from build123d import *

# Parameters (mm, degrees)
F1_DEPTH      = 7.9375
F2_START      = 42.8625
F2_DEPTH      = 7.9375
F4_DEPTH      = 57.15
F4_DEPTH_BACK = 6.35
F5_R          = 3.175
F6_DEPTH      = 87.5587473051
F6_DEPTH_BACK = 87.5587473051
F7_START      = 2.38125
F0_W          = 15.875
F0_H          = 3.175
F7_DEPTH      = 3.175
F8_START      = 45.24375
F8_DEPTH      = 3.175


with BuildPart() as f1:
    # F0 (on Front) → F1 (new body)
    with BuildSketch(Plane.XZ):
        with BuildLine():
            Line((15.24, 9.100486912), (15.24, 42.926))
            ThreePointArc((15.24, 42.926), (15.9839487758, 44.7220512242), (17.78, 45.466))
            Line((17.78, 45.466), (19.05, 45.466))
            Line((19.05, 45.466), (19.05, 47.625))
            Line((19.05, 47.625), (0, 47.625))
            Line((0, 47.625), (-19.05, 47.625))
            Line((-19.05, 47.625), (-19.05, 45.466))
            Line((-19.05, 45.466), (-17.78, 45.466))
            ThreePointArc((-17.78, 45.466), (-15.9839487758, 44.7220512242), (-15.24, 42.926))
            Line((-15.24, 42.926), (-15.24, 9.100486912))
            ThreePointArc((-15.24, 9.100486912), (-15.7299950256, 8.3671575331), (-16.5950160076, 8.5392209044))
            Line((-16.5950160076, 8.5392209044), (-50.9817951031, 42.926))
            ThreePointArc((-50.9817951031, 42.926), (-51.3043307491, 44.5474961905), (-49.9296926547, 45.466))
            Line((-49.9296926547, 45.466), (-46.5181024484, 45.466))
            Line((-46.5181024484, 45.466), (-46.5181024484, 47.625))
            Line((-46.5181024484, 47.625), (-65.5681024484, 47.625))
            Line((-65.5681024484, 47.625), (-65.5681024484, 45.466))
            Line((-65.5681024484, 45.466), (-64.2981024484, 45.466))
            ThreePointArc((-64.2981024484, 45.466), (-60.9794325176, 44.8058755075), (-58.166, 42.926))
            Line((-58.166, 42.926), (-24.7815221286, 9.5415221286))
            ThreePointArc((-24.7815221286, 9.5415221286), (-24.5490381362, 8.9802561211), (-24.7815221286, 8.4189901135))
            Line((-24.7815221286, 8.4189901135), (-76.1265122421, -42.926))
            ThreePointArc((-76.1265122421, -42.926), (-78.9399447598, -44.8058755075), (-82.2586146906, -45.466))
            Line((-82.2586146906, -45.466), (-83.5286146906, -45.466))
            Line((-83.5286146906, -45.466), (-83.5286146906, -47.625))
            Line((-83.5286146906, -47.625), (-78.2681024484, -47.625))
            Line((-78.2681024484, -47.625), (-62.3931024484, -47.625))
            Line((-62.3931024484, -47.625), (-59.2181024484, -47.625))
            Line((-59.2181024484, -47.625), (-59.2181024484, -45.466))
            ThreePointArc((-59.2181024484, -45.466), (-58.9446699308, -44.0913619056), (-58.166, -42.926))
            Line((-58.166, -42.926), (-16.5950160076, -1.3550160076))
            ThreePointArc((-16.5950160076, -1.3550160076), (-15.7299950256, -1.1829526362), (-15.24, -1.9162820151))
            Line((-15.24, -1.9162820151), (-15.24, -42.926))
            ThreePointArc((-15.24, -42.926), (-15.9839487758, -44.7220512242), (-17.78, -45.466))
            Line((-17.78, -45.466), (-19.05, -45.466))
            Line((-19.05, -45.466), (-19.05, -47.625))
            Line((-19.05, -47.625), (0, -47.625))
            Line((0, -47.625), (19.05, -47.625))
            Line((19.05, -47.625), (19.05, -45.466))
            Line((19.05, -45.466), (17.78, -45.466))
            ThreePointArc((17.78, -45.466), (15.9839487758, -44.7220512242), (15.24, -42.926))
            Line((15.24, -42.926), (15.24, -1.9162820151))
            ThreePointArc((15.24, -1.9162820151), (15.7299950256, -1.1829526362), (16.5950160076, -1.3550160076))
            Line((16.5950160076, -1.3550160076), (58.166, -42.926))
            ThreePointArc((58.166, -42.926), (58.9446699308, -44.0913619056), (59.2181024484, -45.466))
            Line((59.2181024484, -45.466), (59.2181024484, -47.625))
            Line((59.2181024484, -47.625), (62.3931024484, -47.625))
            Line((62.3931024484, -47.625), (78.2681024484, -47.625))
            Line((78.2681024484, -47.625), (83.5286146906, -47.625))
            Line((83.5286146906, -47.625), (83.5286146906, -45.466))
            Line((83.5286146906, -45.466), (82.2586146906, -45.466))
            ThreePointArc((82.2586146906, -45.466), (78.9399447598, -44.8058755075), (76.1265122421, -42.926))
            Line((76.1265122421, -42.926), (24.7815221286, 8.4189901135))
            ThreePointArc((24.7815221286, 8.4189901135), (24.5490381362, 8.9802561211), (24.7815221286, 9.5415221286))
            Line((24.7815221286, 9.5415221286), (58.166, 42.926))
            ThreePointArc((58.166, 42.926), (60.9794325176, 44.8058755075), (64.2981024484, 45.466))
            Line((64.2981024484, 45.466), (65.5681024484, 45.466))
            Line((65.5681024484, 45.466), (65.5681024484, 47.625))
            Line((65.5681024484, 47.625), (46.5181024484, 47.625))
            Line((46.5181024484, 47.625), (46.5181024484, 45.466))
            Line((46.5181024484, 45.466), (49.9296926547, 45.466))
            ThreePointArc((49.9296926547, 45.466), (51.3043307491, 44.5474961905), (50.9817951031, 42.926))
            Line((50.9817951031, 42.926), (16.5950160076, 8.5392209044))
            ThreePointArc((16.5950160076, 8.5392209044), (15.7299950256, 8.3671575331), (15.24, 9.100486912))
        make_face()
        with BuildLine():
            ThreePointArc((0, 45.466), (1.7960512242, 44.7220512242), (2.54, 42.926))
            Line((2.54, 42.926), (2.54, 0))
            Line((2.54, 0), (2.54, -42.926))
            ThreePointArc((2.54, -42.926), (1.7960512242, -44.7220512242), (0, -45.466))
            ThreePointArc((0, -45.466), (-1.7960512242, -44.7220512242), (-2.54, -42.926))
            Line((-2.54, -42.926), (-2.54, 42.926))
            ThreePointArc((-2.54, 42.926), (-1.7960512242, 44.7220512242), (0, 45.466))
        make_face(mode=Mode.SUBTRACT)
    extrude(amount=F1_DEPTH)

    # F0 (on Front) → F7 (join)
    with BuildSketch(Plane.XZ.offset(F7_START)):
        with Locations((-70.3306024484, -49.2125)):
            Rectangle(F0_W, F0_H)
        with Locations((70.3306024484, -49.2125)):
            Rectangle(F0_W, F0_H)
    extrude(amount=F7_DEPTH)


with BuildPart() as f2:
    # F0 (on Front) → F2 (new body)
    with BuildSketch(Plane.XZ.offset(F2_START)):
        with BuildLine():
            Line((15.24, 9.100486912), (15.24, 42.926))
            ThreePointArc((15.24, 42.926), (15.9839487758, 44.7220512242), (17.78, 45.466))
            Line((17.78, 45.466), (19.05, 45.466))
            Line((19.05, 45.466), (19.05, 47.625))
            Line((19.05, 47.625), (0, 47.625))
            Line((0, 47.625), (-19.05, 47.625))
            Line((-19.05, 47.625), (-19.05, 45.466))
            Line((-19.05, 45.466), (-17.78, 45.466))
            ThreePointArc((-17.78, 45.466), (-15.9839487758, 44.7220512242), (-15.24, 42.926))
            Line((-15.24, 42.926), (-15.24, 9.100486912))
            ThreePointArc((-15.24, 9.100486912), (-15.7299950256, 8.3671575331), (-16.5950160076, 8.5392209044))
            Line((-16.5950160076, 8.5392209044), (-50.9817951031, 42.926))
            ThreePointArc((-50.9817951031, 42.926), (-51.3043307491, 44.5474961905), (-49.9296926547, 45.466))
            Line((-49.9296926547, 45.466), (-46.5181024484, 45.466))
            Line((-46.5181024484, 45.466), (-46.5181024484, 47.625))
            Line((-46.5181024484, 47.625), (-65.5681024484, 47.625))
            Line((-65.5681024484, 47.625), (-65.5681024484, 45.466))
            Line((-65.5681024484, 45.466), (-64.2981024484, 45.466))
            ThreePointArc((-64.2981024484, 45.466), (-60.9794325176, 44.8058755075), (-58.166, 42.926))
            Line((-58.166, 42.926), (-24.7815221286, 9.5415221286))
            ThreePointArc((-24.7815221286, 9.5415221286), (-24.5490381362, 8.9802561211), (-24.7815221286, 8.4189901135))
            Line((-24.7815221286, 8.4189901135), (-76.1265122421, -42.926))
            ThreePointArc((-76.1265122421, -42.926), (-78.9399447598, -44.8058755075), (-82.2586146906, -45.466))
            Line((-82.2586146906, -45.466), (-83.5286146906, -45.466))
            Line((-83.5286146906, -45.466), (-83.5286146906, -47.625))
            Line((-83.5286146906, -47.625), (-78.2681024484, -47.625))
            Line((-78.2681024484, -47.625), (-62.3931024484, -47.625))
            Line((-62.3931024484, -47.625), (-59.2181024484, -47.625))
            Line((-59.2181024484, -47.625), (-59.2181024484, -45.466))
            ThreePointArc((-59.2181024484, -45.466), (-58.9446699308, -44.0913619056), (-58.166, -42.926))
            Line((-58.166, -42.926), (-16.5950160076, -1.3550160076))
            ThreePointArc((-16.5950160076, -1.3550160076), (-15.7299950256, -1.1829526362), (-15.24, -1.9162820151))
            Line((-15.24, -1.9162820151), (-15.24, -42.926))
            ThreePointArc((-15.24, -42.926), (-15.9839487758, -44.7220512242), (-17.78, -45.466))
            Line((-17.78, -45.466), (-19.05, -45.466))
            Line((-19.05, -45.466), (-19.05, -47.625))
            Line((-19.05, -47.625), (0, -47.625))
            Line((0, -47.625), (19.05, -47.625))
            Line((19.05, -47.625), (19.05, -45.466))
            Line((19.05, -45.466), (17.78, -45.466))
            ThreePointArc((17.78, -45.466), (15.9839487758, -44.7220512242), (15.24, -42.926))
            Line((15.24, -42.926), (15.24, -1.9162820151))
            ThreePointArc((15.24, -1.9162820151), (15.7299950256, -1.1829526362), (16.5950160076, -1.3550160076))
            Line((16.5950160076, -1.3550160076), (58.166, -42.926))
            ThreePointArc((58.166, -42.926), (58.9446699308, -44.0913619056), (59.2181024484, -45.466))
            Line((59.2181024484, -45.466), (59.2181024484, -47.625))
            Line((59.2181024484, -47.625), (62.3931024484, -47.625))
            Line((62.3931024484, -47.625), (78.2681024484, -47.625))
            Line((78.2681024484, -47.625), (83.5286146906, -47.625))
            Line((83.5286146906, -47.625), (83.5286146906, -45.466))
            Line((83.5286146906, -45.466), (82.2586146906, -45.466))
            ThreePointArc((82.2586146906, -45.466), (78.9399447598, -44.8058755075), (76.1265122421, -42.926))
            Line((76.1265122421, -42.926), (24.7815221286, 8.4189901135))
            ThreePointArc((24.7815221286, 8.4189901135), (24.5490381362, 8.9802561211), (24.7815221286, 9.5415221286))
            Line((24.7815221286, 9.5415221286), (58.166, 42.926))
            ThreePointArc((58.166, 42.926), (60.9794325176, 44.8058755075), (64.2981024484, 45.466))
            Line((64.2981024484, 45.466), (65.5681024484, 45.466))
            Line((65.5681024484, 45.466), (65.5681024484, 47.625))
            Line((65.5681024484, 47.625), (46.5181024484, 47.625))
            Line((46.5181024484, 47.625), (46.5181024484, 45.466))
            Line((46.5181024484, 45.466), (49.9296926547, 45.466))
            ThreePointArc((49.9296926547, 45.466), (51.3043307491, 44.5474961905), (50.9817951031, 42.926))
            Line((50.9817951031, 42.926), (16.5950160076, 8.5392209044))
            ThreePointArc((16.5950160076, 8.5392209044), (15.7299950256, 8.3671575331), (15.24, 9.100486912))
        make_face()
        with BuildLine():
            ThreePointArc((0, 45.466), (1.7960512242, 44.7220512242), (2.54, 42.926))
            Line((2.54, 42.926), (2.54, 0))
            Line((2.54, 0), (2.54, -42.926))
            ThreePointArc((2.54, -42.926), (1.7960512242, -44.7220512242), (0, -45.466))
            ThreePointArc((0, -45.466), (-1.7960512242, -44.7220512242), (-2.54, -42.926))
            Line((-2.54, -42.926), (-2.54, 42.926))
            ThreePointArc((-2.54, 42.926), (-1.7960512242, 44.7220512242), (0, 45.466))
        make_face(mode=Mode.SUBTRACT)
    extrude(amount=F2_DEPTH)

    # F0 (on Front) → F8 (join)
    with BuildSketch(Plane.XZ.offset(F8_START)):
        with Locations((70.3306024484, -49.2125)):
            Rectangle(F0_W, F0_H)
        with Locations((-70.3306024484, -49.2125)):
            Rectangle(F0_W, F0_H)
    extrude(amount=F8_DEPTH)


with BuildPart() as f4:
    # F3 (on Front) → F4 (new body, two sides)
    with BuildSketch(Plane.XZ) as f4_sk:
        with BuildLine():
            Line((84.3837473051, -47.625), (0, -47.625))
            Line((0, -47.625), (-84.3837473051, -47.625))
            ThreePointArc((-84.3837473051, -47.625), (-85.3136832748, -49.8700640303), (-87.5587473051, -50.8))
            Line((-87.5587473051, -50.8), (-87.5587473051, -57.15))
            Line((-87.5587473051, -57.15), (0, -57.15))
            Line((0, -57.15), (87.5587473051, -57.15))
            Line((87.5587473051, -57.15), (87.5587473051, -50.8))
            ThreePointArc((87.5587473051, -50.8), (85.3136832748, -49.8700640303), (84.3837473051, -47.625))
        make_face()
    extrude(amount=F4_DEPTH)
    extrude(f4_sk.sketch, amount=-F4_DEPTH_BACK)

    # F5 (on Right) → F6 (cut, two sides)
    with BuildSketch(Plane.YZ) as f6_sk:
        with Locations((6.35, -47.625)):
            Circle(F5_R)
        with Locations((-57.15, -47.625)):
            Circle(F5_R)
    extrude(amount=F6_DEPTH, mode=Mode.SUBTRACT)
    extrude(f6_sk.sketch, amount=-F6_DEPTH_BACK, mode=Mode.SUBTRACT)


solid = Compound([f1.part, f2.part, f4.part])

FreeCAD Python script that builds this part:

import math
import FreeCAD as App
import Part
import Sketcher
Q = App.Units.Quantity

doc = App.newDocument("Part")
body = doc.addObject("PartDesign::Body", "Body")

# Sketch on XZ plane
sketch1 = doc.addObject("Sketcher::SketchObject", "Sketch")
body.addObject(sketch1)
sketch1.AttachmentSupport = (doc.XZ_Plane, [""])
sketch1.MapMode = "FlatFace"
sketch1.addGeometry([
    Part.LineSegment(App.Vector(15.24, 9.100487, 0), App.Vector(15.24, 42.926, 0)),  # 0
    Part.ArcOfCircle(Part.Circle(App.Vector(17.78, 42.926, 0), App.Vector(0, 0, 1), 2.54), math.radians(90), math.radians(180)),  # 1
    Part.LineSegment(App.Vector(17.78, 45.466, 0), App.Vector(19.05, 45.466, 0)),  # 2
    Part.LineSegment(App.Vector(19.05, 45.466, 0), App.Vector(19.05, 47.625, 0)),  # 3
    Part.LineSegment(App.Vector(19.05, 47.625, 0), App.Vector(-19.05, 47.625, 0)),  # 4
    Part.LineSegment(App.Vector(-19.05, 47.625, 0), App.Vector(-19.05, 45.466, 0)),  # 5
    Part.LineSegment(App.Vector(-19.05, 45.466, 0), App.Vector(-17.78, 45.466, 0)),  # 6
    Part.ArcOfCircle(Part.Circle(App.Vector(-17.78, 42.926, 0), App.Vector(0, 0, 1), 2.54), math.radians(0), math.radians(90)),  # 7
    Part.LineSegment(App.Vector(-15.24, 42.926, 0), App.Vector(-15.24, 9.100487, 0)),  # 8
    Part.ArcOfCircle(Part.Circle(App.Vector(-16.03375, 9.100487, 0), App.Vector(0, 0, 1), 0.79375), math.radians(-135), math.radians(0)),  # 9
    Part.LineSegment(App.Vector(-16.595016, 8.539221, 0), App.Vector(-50.981795, 42.926, 0)),  # 10
    Part.ArcOfCircle(Part.Circle(App.Vector(-49.929693, 43.978102, 0), App.Vector(0, 0, 1), 1.487898), math.radians(90), math.radians(225)),  # 11
    Part.LineSegment(App.Vector(-49.929693, 45.466, 0), App.Vector(-46.518102, 45.466, 0)),  # 12
    Part.LineSegment(App.Vector(-46.518102, 45.466, 0), App.Vector(-46.518102, 47.625, 0)),  # 13
    Part.LineSegment(App.Vector(-46.518102, 47.625, 0), App.Vector(-65.568102, 47.625, 0)),  # 14
    Part.LineSegment(App.Vector(-65.568102, 47.625, 0), App.Vector(-65.568102, 45.466, 0)),  # 15
    Part.LineSegment(App.Vector(-65.568102, 45.466, 0), App.Vector(-64.298102, 45.466, 0)),  # 16
    Part.ArcOfCircle(Part.Circle(App.Vector(-64.298102, 36.793898, 0), App.Vector(0, 0, 1), 8.672102), math.radians(45), math.radians(90)),  # 17
    Part.LineSegment(App.Vector(-58.166, 42.926, 0), App.Vector(-24.781522, 9.541522, 0)),  # 18
    Part.ArcOfCircle(Part.Circle(App.Vector(-25.342788, 8.980256, 0), App.Vector(0, 0, 1), 0.79375), math.radians(-45), math.radians(45)),  # 19
    Part.LineSegment(App.Vector(-24.781522, 8.41899, 0), App.Vector(-76.126512, -42.926, 0)),  # 20
    Part.ArcOfCircle(Part.Circle(App.Vector(-82.258615, -36.793898, 0), App.Vector(0, 0, 1), 8.672102), math.radians(-90), math.radians(-45)),  # 21
    Part.LineSegment(App.Vector(-82.258615, -45.466, 0), App.Vector(-83.528615, -45.466, 0)),  # 22
    Part.LineSegment(App.Vector(-83.528615, -45.466, 0), App.Vector(-83.528615, -47.625, 0)),  # 23
    Part.LineSegment(App.Vector(-83.528615, -47.625, 0), App.Vector(-59.218102, -47.625, 0)),  # 24
    Part.LineSegment(App.Vector(-59.218102, -47.625, 0), App.Vector(-59.218102, -45.466, 0)),  # 25
    Part.ArcOfCircle(Part.Circle(App.Vector(-55.626, -45.466, 0), App.Vector(0, 0, 1), 3.592102), math.radians(135), math.radians(180)),  # 26
    Part.LineSegment(App.Vector(-58.166, -42.926, 0), App.Vector(-16.595016, -1.355016, 0)),  # 27
    Part.ArcOfCircle(Part.Circle(App.Vector(-16.03375, -1.916282, 0), App.Vector(0, 0, 1), 0.79375), math.radians(0), math.radians(135)),  # 28
    Part.LineSegment(App.Vector(-15.24, -1.916282, 0), App.Vector(-15.24, -42.926, 0)),  # 29
    Part.ArcOfCircle(Part.Circle(App.Vector(-17.78, -42.926, 0), App.Vector(0, 0, 1), 2.54), math.radians(-90), math.radians(0)),  # 30
    Part.LineSegment(App.Vector(-17.78, -45.466, 0), App.Vector(-19.05, -45.466, 0)),  # 31
    Part.LineSegment(App.Vector(-19.05, -45.466, 0), App.Vector(-19.05, -47.625, 0)),  # 32
    Part.LineSegment(App.Vector(-19.05, -47.625, 0), App.Vector(19.05, -47.625, 0)),  # 33
    Part.LineSegment(App.Vector(19.05, -47.625, 0), App.Vector(19.05, -45.466, 0)),  # 34
    Part.LineSegment(App.Vector(19.05, -45.466, 0), App.Vector(17.78, -45.466, 0)),  # 35
    Part.ArcOfCircle(Part.Circle(App.Vector(17.78, -42.926, 0), App.Vector(0, 0, 1), 2.54), math.radians(180), math.radians(270)),  # 36
    Part.LineSegment(App.Vector(15.24, -42.926, 0), App.Vector(15.24, -1.916282, 0)),  # 37
    Part.ArcOfCircle(Part.Circle(App.Vector(16.03375, -1.916282, 0), App.Vector(0, 0, 1), 0.79375), math.radians(45), math.radians(180)),  # 38
    Part.LineSegment(App.Vector(16.595016, -1.355016, 0), App.Vector(58.166, -42.926, 0)),  # 39
    Part.ArcOfCircle(Part.Circle(App.Vector(55.626, -45.466, 0), App.Vector(0, 0, 1), 3.592102), math.radians(0), math.radians(45)),  # 40
    Part.LineSegment(App.Vector(59.218102, -45.466, 0), App.Vector(59.218102, -47.625, 0)),  # 41
    Part.LineSegment(App.Vector(59.218102, -47.625, 0), App.Vector(83.528615, -47.625, 0)),  # 42
    Part.LineSegment(App.Vector(83.528615, -47.625, 0), App.Vector(83.528615, -45.466, 0)),  # 43
    Part.LineSegment(App.Vector(83.528615, -45.466, 0), App.Vector(82.258615, -45.466, 0)),  # 44
    Part.ArcOfCircle(Part.Circle(App.Vector(82.258615, -36.793898, 0), App.Vector(0, 0, 1), 8.672102), math.radians(-135), math.radians(-90)),  # 45
    Part.LineSegment(App.Vector(76.126512, -42.926, 0), App.Vector(24.781522, 8.41899, 0)),  # 46
    Part.ArcOfCircle(Part.Circle(App.Vector(25.342788, 8.980256, 0), App.Vector(0, 0, 1), 0.79375), math.radians(135), math.radians(225)),  # 47
    Part.LineSegment(App.Vector(24.781522, 9.541522, 0), App.Vector(58.166, 42.926, 0)),  # 48
    Part.ArcOfCircle(Part.Circle(App.Vector(64.298102, 36.793898, 0), App.Vector(0, 0, 1), 8.672102), math.radians(90), math.radians(135)),  # 49
    Part.LineSegment(App.Vector(64.298102, 45.466, 0), App.Vector(65.568102, 45.466, 0)),  # 50
    Part.LineSegment(App.Vector(65.568102, 45.466, 0), App.Vector(65.568102, 47.625, 0)),  # 51
    Part.LineSegment(App.Vector(65.568102, 47.625, 0), App.Vector(46.518102, 47.625, 0)),  # 52
    Part.LineSegment(App.Vector(46.518102, 47.625, 0), App.Vector(46.518102, 45.466, 0)),  # 53
    Part.LineSegment(App.Vector(46.518102, 45.466, 0), App.Vector(49.929693, 45.466, 0)),  # 54
    Part.ArcOfCircle(Part.Circle(App.Vector(49.929693, 43.978102, 0), App.Vector(0, 0, 1), 1.487898), math.radians(-45), math.radians(90)),  # 55
    Part.LineSegment(App.Vector(50.981795, 42.926, 0), App.Vector(16.595016, 8.539221, 0)),  # 56
    Part.ArcOfCircle(Part.Circle(App.Vector(16.03375, 9.100487, 0), App.Vector(0, 0, 1), 0.79375), math.radians(180), math.radians(315)),  # 57
    Part.ArcOfCircle(Part.Circle(App.Vector(0, 42.926, 0), App.Vector(0, 0, 1), 2.54), math.radians(90), math.radians(180)),  # 58
    Part.ArcOfCircle(Part.Circle(App.Vector(0, 42.926, 0), App.Vector(0, 0, 1), 2.54), math.radians(0), math.radians(90)),  # 59
    Part.LineSegment(App.Vector(2.54, 42.926, 0), App.Vector(2.54, -42.926, 0)),  # 60
    Part.ArcOfCircle(Part.Circle(App.Vector(0, -42.926, 0), App.Vector(0, 0, 1), 2.54), math.radians(-90), math.radians(0)),  # 61
    Part.ArcOfCircle(Part.Circle(App.Vector(0, -42.926, 0), App.Vector(0, 0, 1), 2.54), math.radians(180), math.radians(270)),  # 62
    Part.LineSegment(App.Vector(-2.54, -42.926, 0), App.Vector(-2.54, 42.926, 0)),  # 63
], False)
sketch1.addConstraint([
    Sketcher.Constraint("Tangent", 0, 2, 1, 2),
    Sketcher.Constraint("Tangent", 1, 1, 2, 1),
    Sketcher.Constraint("Coincident", 2, 2, 3, 1),
    Sketcher.Constraint("Coincident", 3, 2, 4, 1),
    Sketcher.Constraint("Coincident", 4, 2, 5, 1),
    Sketcher.Constraint("Coincident", 5, 2, 6, 1),
    Sketcher.Constraint("Tangent", 6, 2, 7, 2),
    Sketcher.Constraint("Tangent", 7, 1, 8, 1),
    Sketcher.Constraint("Tangent", 8, 2, 9, 2),
    Sketcher.Constraint("Tangent", 9, 1, 10, 1),
    Sketcher.Constraint("Tangent", 10, 2, 11, 2),
    Sketcher.Constraint("Tangent", 11, 1, 12, 1),
    Sketcher.Constraint("Coincident", 12, 2, 13, 1),
    Sketcher.Constraint("Coincident", 13, 2, 14, 1),
    Sketcher.Constraint("Coincident", 14, 2, 15, 1),
    Sketcher.Constraint("Coincident", 15, 2, 16, 1),
    Sketcher.Constraint("Tangent", 16, 2, 17, 2),
    Sketcher.Constraint("Tangent", 17, 1, 18, 1),
    Sketcher.Constraint("Tangent", 18, 2, 19, 2),
    Sketcher.Constraint("Tangent", 19, 1, 20, 1),
    Sketcher.Constraint("Tangent", 20, 2, 21, 2),
    Sketcher.Constraint("Tangent", 21, 1, 22, 1),
    Sketcher.Constraint("Coincident", 22, 2, 23, 1),
    Sketcher.Constraint("Coincident", 23, 2, 24, 1),
    Sketcher.Constraint("Coincident", 24, 2, 25, 1),
    Sketcher.Constraint("Tangent", 25, 2, 26, 2),
    Sketcher.Constraint("Tangent", 26, 1, 27, 1),
    Sketcher.Constraint("Tangent", 27, 2, 28, 2),
    Sketcher.Constraint("Tangent", 28, 1, 29, 1),
    Sketcher.Constraint("Tangent", 29, 2, 30, 2),
    Sketcher.Constraint("Tangent", 30, 1, 31, 1),
    Sketcher.Constraint("Coincident", 31, 2, 32, 1),
    Sketcher.Constraint("Coincident", 32, 2, 33, 1),
    Sketcher.Constraint("Coincident", 33, 2, 34, 1),
    Sketcher.Constraint("Coincident", 34, 2, 35, 1),
    Sketcher.Constraint("Tangent", 35, 2, 36, 2),
    Sketcher.Constraint("Tangent", 36, 1, 37, 1),
    Sketcher.Constraint("Tangent", 37, 2, 38, 2),
    Sketcher.Constraint("Tangent", 38, 1, 39, 1),
    Sketcher.Constraint("Tangent", 39, 2, 40, 2),
    Sketcher.Constraint("Tangent", 40, 1, 41, 1),
    Sketcher.Constraint("Coincident", 41, 2, 42, 1),
    Sketcher.Constraint("Coincident", 42, 2, 43, 1),
    Sketcher.Constraint("Coincident", 43, 2, 44, 1),
    Sketcher.Constraint("Tangent", 44, 2, 45, 2),
    Sketcher.Constraint("Tangent", 45, 1, 46, 1),
    Sketcher.Constraint("Tangent", 46, 2, 47, 2),
    Sketcher.Constraint("Tangent", 47, 1, 48, 1),
    Sketcher.Constraint("Tangent", 48, 2, 49, 2),
    Sketcher.Constraint("Tangent", 49, 1, 50, 1),
    Sketcher.Constraint("Coincident", 50, 2, 51, 1),
    Sketcher.Constraint("Coincident", 51, 2, 52, 1),
    Sketcher.Constraint("Coincident", 52, 2, 53, 1),
    Sketcher.Constraint("Coincident", 53, 2, 54, 1),
    Sketcher.Constraint("Tangent", 54, 2, 55, 2),
    Sketcher.Constraint("Tangent", 55, 1, 56, 1),
    Sketcher.Constraint("Tangent", 56, 2, 57, 2),
    Sketcher.Constraint("Tangent", 57, 1, 0, 1),
    Sketcher.Constraint("Tangent", 58, 1, 59, 2),
    Sketcher.Constraint("Tangent", 59, 1, 60, 1),
    Sketcher.Constraint("Tangent", 60, 2, 61, 2),
    Sketcher.Constraint("Tangent", 61, 1, 62, 2),
    Sketcher.Constraint("Tangent", 62, 1, 63, 1),
    Sketcher.Constraint("Tangent", 63, 2, 58, 2),
    Sketcher.Constraint("Vertical", 0),
    Sketcher.Constraint("Horizontal", 2),
    Sketcher.Constraint("Vertical", 3),
    Sketcher.Constraint("Horizontal", 4),
    Sketcher.Constraint("Vertical", 5),
    Sketcher.Constraint("Horizontal", 6),
    Sketcher.Constraint("Vertical", 8),
    Sketcher.Constraint("Horizontal", 12),
    Sketcher.Constraint("Vertical", 13),
    Sketcher.Constraint("Horizontal", 14),
    Sketcher.Constraint("Vertical", 15),
    Sketcher.Constraint("Horizontal", 16),
    Sketcher.Constraint("Horizontal", 22),
    Sketcher.Constraint("Vertical", 23),
    Sketcher.Constraint("Horizontal", 24),
    Sketcher.Constraint("Vertical", 25),
    Sketcher.Constraint("Vertical", 29),
    Sketcher.Constraint("Horizontal", 31),
    Sketcher.Constraint("Vertical", 32),
    Sketcher.Constraint("Horizontal", 33),
    Sketcher.Constraint("Vertical", 34),
    Sketcher.Constraint("Horizontal", 35),
    Sketcher.Constraint("Vertical", 37),
    Sketcher.Constraint("Vertical", 41),
    Sketcher.Constraint("Horizontal", 42),
    Sketcher.Constraint("Vertical", 43),
    Sketcher.Constraint("Horizontal", 44),
    Sketcher.Constraint("Horizontal", 50),
    Sketcher.Constraint("Vertical", 51),
    Sketcher.Constraint("Horizontal", 52),
    Sketcher.Constraint("Vertical", 53),
    Sketcher.Constraint("Horizontal", 54),
    Sketcher.Constraint("Vertical", 60),
    Sketcher.Constraint("Vertical", 63),
    Sketcher.Constraint("Equal", 1, 7),
    Sketcher.Constraint("Equal", 9, 19),
    Sketcher.Constraint("Equal", 17, 21),
    Sketcher.Constraint("Equal", 19, 28),
    Sketcher.Constraint("Equal", 7, 30),
    Sketcher.Constraint("Equal", 30, 36),
    Sketcher.Constraint("Equal", 28, 38),
    Sketcher.Constraint("Equal", 26, 40),
    Sketcher.Constraint("Equal", 21, 45),
    Sketcher.Constraint("Equal", 38, 47),
    Sketcher.Constraint("Equal", 45, 49),
    Sketcher.Constraint("Equal", 11, 55),
    Sketcher.Constraint("Equal", 47, 57),
    Sketcher.Constraint("Equal", 36, 58),
    Sketcher.Constraint("Equal", 58, 59),
    Sketcher.Constraint("Equal", 59, 61),
    Sketcher.Constraint("Symmetric", 1, 3, 30, 3, -1, 1),
    Sketcher.Constraint("Symmetric", 7, 3, 36, 3, -1, 1),
    Sketcher.Constraint("Symmetric", 58, 3, 61, 3, -1, 1),
    Sketcher.Constraint("Symmetric", 3, 2, 32, 2, -1, 1),
    Sketcher.Constraint("Symmetric", 17, 1, 39, 2, -1, 1),
    Sketcher.Constraint("Symmetric", 26, 1, 48, 2, -1, 1),
    Sketcher.Constraint("Symmetric", 1, 3, 7, 3, -2),
    Sketcher.Constraint("Symmetric", 26, 3, 40, 3, -2),
    Sketcher.Constraint("Symmetric", 21, 3, 45, 3, -2),
    Sketcher.Constraint("Symmetric", 19, 3, 47, 3, -2),
    Sketcher.Constraint("Symmetric", 11, 3, 55, 3, -2),
    Sketcher.Constraint("Symmetric", 23, 2, 42, 2, -2),
    Sketcher.Constraint("Symmetric", 15, 2, 50, 2, -2),
    Sketcher.Constraint("Symmetric", 13, 2, 52, 2, -2),
    Sketcher.Constraint("PointOnObject", 58, 1, -2),
    Sketcher.Constraint("PointOnObject", 61, 1, -2),
    Sketcher.Constraint("Parallel", 10, 18),
    Sketcher.Constraint("Perpendicular", 18, 20),
    Sketcher.Constraint("Parallel", 20, 27),
    Sketcher.Constraint("Perpendicular", 27, 39),
    Sketcher.Constraint("Parallel", 48, 56),
    Sketcher.Constraint("Horizontal", 7, 3, 58, 3),
    Sketcher.Constraint("Horizontal", 7, 1, 10, 2),
    Sketcher.Constraint("Horizontal", 6, 2, 11, 1),
    Sketcher.Constraint("Horizontal", 4, 2, 13, 2),
    Sketcher.Constraint("Horizontal", 12, 2, 15, 2),
    Sketcher.Constraint("Horizontal", 10, 2, 17, 1),
    Sketcher.Constraint("Horizontal", 62, 3, 20, 2),
    Sketcher.Constraint("Horizontal", 40, 3, 21, 1),
    Sketcher.Constraint("Horizontal", 24, 2, 32, 2),
    Sketcher.Constraint("Vertical", 5, 2, 31, 2),
    Sketcher.Constraint("Vertical", 3, 2, 33, 2),
    Sketcher.Constraint("Equal", 6, 16),
    Sketcher.Constraint("Equal", 16, 22),
    Sketcher.Constraint("Radius", 1, Q("0.1 in")),
    Sketcher.Constraint("DistanceX", 4, 2, 4, 1, Q("1.5 in")),
    Sketcher.Constraint("Radius", 9, Q("0.03125 in")),
    Sketcher.Constraint("DistanceX", 2, 1, 2, 2, Q("0.05 in")),
    Sketcher.Constraint("DistanceX", 14, 2, 14, 1, Q("0.75 in")),
    Sketcher.Constraint("DistanceY", 60, 2, 60, 1, Q("3.38 in")),
    Sketcher.Constraint("DistanceY", 3, 1, 3, 2, Q("0.085 in")),
    Sketcher.Constraint("DistanceX", 26, 3, -1, 1, Q("2.19 in")),
    Sketcher.Constraint("DistanceX", 12, 1, 12, 2, Q("3.41159 mm")),
    Sketcher.Constraint("Distance", 18, Q("47.212781 mm")),
])
pad1 = doc.addObject("PartDesign::Pad", "Pad")
body.addObject(pad1)
pad1.Profile = sketch1
pad1.Length = Q("0.3125 in")

# Sketch on XZ plane
sketch2 = doc.addObject("Sketcher::SketchObject", "Sketch001")
body.addObject(sketch2)
sketch2.AttachmentSupport = (doc.XZ_Plane, [""])
sketch2.MapMode = "FlatFace"
sketch2.AttachmentOffset = App.Placement(App.Vector(0, 0, 0.09375 * 25.4), App.Rotation())
sketch2.addGeometry([
    Part.LineSegment(App.Vector(-78.268102, -47.625, 0), App.Vector(-78.268102, -50.8, 0)),  # 0
    Part.LineSegment(App.Vector(-78.268102, -50.8, 0), App.Vector(-62.393102, -50.8, 0)),  # 1
    Part.LineSegment(App.Vector(-62.393102, -50.8, 0), App.Vector(-62.393102, -47.625, 0)),  # 2
    Part.LineSegment(App.Vector(-62.393102, -47.625, 0), App.Vector(-78.268102, -47.625, 0)),  # 3
    Part.LineSegment(App.Vector(62.393102, -47.625, 0), App.Vector(62.393102, -50.8, 0)),  # 4
    Part.LineSegment(App.Vector(62.393102, -50.8, 0), App.Vector(78.268102, -50.8, 0)),  # 5
    Part.LineSegment(App.Vector(78.268102, -50.8, 0), App.Vector(78.268102, -47.625, 0)),  # 6
    Part.LineSegment(App.Vector(78.268102, -47.625, 0), App.Vector(62.393102, -47.625, 0)),  # 7
], False)
sketch2.addConstraint([
    Sketcher.Constraint("Coincident", 0, 2, 1, 1),
    Sketcher.Constraint("Coincident", 1, 2, 2, 1),
    Sketcher.Constraint("Coincident", 2, 2, 3, 1),
    Sketcher.Constraint("Coincident", 3, 2, 0, 1),
    Sketcher.Constraint("Coincident", 4, 2, 5, 1),
    Sketcher.Constraint("Coincident", 5, 2, 6, 1),
    Sketcher.Constraint("Coincident", 6, 2, 7, 1),
    Sketcher.Constraint("Coincident", 7, 2, 4, 1),
    Sketcher.Constraint("Vertical", 0),
    Sketcher.Constraint("Horizontal", 1),
    Sketcher.Constraint("Vertical", 2),
    Sketcher.Constraint("Horizontal", 3),
    Sketcher.Constraint("Vertical", 4),
    Sketcher.Constraint("Horizontal", 5),
    Sketcher.Constraint("Vertical", 6),
    Sketcher.Constraint("Horizontal", 7),
    Sketcher.Constraint("Symmetric", 1, 2, 4, 2, -2),
    Sketcher.Constraint("Symmetric", 3, 2, 6, 2, -2),
    Sketcher.Constraint("DistanceY", 0, 2, -1, 1, Q("2 in")),
    Sketcher.Constraint("DistanceX", 1, 1, 1, 2, Q("0.625 in")),
    Sketcher.Constraint("DistanceY", 0, 2, 0, 1, Q("0.125 in")),
    Sketcher.Constraint("DistanceX", 0, 2, -1, 1, Q("78.268102 mm")),
])
pad2 = doc.addObject("PartDesign::Pad", "Pad001")
body.addObject(pad2)
pad2.Profile = sketch2
pad2.Length = Q("0.125 in")
body2 = doc.addObject("PartDesign::Body", "Body001")

# Sketch on XZ plane
sketch3 = doc.addObject("Sketcher::SketchObject", "Sketch002")
body2.addObject(sketch3)
sketch3.AttachmentSupport = (doc.getObject("XZ_Plane001"), [""])
sketch3.MapMode = "FlatFace"
sketch3.AttachmentOffset = App.Placement(App.Vector(0, 0, 1.6875 * 25.4), App.Rotation())
sketch3.addGeometry([
    Part.LineSegment(App.Vector(15.24, 9.100487, 0), App.Vector(15.24, 42.926, 0)),  # 0
    Part.ArcOfCircle(Part.Circle(App.Vector(17.78, 42.926, 0), App.Vector(0, 0, 1), 2.54), math.radians(90), math.radians(180)),  # 1
    Part.LineSegment(App.Vector(17.78, 45.466, 0), App.Vector(19.05, 45.466, 0)),  # 2
    Part.LineSegment(App.Vector(19.05, 45.466, 0), App.Vector(19.05, 47.625, 0)),  # 3
    Part.LineSegment(App.Vector(19.05, 47.625, 0), App.Vector(-19.05, 47.625, 0)),  # 4
    Part.LineSegment(App.Vector(-19.05, 47.625, 0), App.Vector(-19.05, 45.466, 0)),  # 5
    Part.LineSegment(App.Vector(-19.05, 45.466, 0), App.Vector(-17.78, 45.466, 0)),  # 6
    Part.ArcOfCircle(Part.Circle(App.Vector(-17.78, 42.926, 0), App.Vector(0, 0, 1), 2.54), math.radians(0), math.radians(90)),  # 7
    Part.LineSegment(App.Vector(-15.24, 42.926, 0), App.Vector(-15.24, 9.100487, 0)),  # 8
    Part.ArcOfCircle(Part.Circle(App.Vector(-16.03375, 9.100487, 0), App.Vector(0, 0, 1), 0.79375), math.radians(-135), math.radians(0)),  # 9
    Part.LineSegment(App.Vector(-16.595016, 8.539221, 0), App.Vector(-50.981795, 42.926, 0)),  # 10
    Part.ArcOfCircle(Part.Circle(App.Vector(-49.929693, 43.978102, 0), App.Vector(0, 0, 1), 1.487898), math.radians(90), math.radians(225)),  # 11
    Part.LineSegment(App.Vector(-49.929693, 45.466, 0), App.Vector(-46.518102, 45.466, 0)),  # 12
    Part.LineSegment(App.Vector(-46.518102, 45.466, 0), App.Vector(-46.518102, 47.625, 0)),  # 13
    Part.LineSegment(App.Vector(-46.518102, 47.625, 0), App.Vector(-65.568102, 47.625, 0)),  # 14
    Part.LineSegment(App.Vector(-65.568102, 47.625, 0), App.Vector(-65.568102, 45.466, 0)),  # 15
    Part.LineSegment(App.Vector(-65.568102, 45.466, 0), App.Vector(-64.298102, 45.466, 0)),  # 16
    Part.ArcOfCircle(Part.Circle(App.Vector(-64.298102, 36.793898, 0), App.Vector(0, 0, 1), 8.672102), math.radians(45), math.radians(90)),  # 17
    Part.LineSegment(App.Vector(-58.166, 42.926, 0), App.Vector(-24.781522, 9.541522, 0)),  # 18
    Part.ArcOfCircle(Part.Circle(App.Vector(-25.342788, 8.980256, 0), App.Vector(0, 0, 1), 0.79375), math.radians(-45), math.radians(45)),  # 19
    Part.LineSegment(App.Vector(-24.781522, 8.41899, 0), App.Vector(-76.126512, -42.926, 0)),  # 20
    Part.ArcOfCircle(Part.Circle(App.Vector(-82.258615, -36.793898, 0), App.Vector(0, 0, 1), 8.672102), math.radians(-90), math.radians(-45)),  # 21
    Part.LineSegment(App.Vector(-82.258615, -45.466, 0), App.Vector(-83.528615, -45.466, 0)),  # 22
    Part.LineSegment(App.Vector(-83.528615, -45.466, 0), App.Vector(-83.528615, -47.625, 0)),  # 23
    Part.LineSegment(App.Vector(-83.528615, -47.625, 0), App.Vector(-59.218102, -47.625, 0)),  # 24
    Part.LineSegment(App.Vector(-59.218102, -47.625, 0), App.Vector(-59.218102, -45.466, 0)),  # 25
    Part.ArcOfCircle(Part.Circle(App.Vector(-55.626, -45.466, 0), App.Vector(0, 0, 1), 3.592102), math.radians(135), math.radians(180)),  # 26
    Part.LineSegment(App.Vector(-58.166, -42.926, 0), App.Vector(-16.595016, -1.355016, 0)),  # 27
    Part.ArcOfCircle(Part.Circle(App.Vector(-16.03375, -1.916282, 0), App.Vector(0, 0, 1), 0.79375), math.radians(0), math.radians(135)),  # 28
    Part.LineSegment(App.Vector(-15.24, -1.916282, 0), App.Vector(-15.24, -42.926, 0)),  # 29
    Part.ArcOfCircle(Part.Circle(App.Vector(-17.78, -42.926, 0), App.Vector(0, 0, 1), 2.54), math.radians(-90), math.radians(0)),  # 30
    Part.LineSegment(App.Vector(-17.78, -45.466, 0), App.Vector(-19.05, -45.466, 0)),  # 31
    Part.LineSegment(App.Vector(-19.05, -45.466, 0), App.Vector(-19.05, -47.625, 0)),  # 32
    Part.LineSegment(App.Vector(-19.05, -47.625, 0), App.Vector(19.05, -47.625, 0)),  # 33
    Part.LineSegment(App.Vector(19.05, -47.625, 0), App.Vector(19.05, -45.466, 0)),  # 34
    Part.LineSegment(App.Vector(19.05, -45.466, 0), App.Vector(17.78, -45.466, 0)),  # 35
    Part.ArcOfCircle(Part.Circle(App.Vector(17.78, -42.926, 0), App.Vector(0, 0, 1), 2.54), math.radians(180), math.radians(270)),  # 36
    Part.LineSegment(App.Vector(15.24, -42.926, 0), App.Vector(15.24, -1.916282, 0)),  # 37
    Part.ArcOfCircle(Part.Circle(App.Vector(16.03375, -1.916282, 0), App.Vector(0, 0, 1), 0.79375), math.radians(45), math.radians(180)),  # 38
    Part.LineSegment(App.Vector(16.595016, -1.355016, 0), App.Vector(58.166, -42.926, 0)),  # 39
    Part.ArcOfCircle(Part.Circle(App.Vector(55.626, -45.466, 0), App.Vector(0, 0, 1), 3.592102), math.radians(0), math.radians(45)),  # 40
    Part.LineSegment(App.Vector(59.218102, -45.466, 0), App.Vector(59.218102, -47.625, 0)),  # 41
    Part.LineSegment(App.Vector(59.218102, -47.625, 0), App.Vector(83.528615, -47.625, 0)),  # 42
    Part.LineSegment(App.Vector(83.528615, -47.625, 0), App.Vector(83.528615, -45.466, 0)),  # 43
    Part.LineSegment(App.Vector(83.528615, -45.466, 0), App.Vector(82.258615, -45.466, 0)),  # 44
    Part.ArcOfCircle(Part.Circle(App.Vector(82.258615, -36.793898, 0), App.Vector(0, 0, 1), 8.672102), math.radians(-135), math.radians(-90)),  # 45
    Part.LineSegment(App.Vector(76.126512, -42.926, 0), App.Vector(24.781522, 8.41899, 0)),  # 46
    Part.ArcOfCircle(Part.Circle(App.Vector(25.342788, 8.980256, 0), App.Vector(0, 0, 1), 0.79375), math.radians(135), math.radians(225)),  # 47
    Part.LineSegment(App.Vector(24.781522, 9.541522, 0), App.Vector(58.166, 42.926, 0)),  # 48
    Part.ArcOfCircle(Part.Circle(App.Vector(64.298102, 36.793898, 0), App.Vector(0, 0, 1), 8.672102), math.radians(90), math.radians(135)),  # 49
    Part.LineSegment(App.Vector(64.298102, 45.466, 0), App.Vector(65.568102, 45.466, 0)),  # 50
    Part.LineSegment(App.Vector(65.568102, 45.466, 0), App.Vector(65.568102, 47.625, 0)),  # 51
    Part.LineSegment(App.Vector(65.568102, 47.625, 0), App.Vector(46.518102, 47.625, 0)),  # 52
    Part.LineSegment(App.Vector(46.518102, 47.625, 0), App.Vector(46.518102, 45.466, 0)),  # 53
    Part.LineSegment(App.Vector(46.518102, 45.466, 0), App.Vector(49.929693, 45.466, 0)),  # 54
    Part.ArcOfCircle(Part.Circle(App.Vector(49.929693, 43.978102, 0), App.Vector(0, 0, 1), 1.487898), math.radians(-45), math.radians(90)),  # 55
    Part.LineSegment(App.Vector(50.981795, 42.926, 0), App.Vector(16.595016, 8.539221, 0)),  # 56
    Part.ArcOfCircle(Part.Circle(App.Vector(16.03375, 9.100487, 0), App.Vector(0, 0, 1), 0.79375), math.radians(180), math.radians(315)),  # 57
    Part.ArcOfCircle(Part.Circle(App.Vector(0, 42.926, 0), App.Vector(0, 0, 1), 2.54), math.radians(90), math.radians(180)),  # 58
    Part.ArcOfCircle(Part.Circle(App.Vector(0, 42.926, 0), App.Vector(0, 0, 1), 2.54), math.radians(0), math.radians(90)),  # 59
    Part.LineSegment(App.Vector(2.54, 42.926, 0), App.Vector(2.54, -42.926, 0)),  # 60
    Part.ArcOfCircle(Part.Circle(App.Vector(0, -42.926, 0), App.Vector(0, 0, 1), 2.54), math.radians(-90), math.radians(0)),  # 61
    Part.ArcOfCircle(Part.Circle(App.Vector(0, -42.926, 0), App.Vector(0, 0, 1), 2.54), math.radians(180), math.radians(270)),  # 62
    Part.LineSegment(App.Vector(-2.54, -42.926, 0), App.Vector(-2.54, 42.926, 0)),  # 63
], False)
sketch3.addConstraint([
    Sketcher.Constraint("Tangent", 0, 2, 1, 2),
    Sketcher.Constraint("Tangent", 1, 1, 2, 1),
    Sketcher.Constraint("Coincident", 2, 2, 3, 1),
    Sketcher.Constraint("Coincident", 3, 2, 4, 1),
    Sketcher.Constraint("Coincident", 4, 2, 5, 1),
    Sketcher.Constraint("Coincident", 5, 2, 6, 1),
    Sketcher.Constraint("Tangent", 6, 2, 7, 2),
    Sketcher.Constraint("Tangent", 7, 1, 8, 1),
    Sketcher.Constraint("Tangent", 8, 2, 9, 2),
    Sketcher.Constraint("Tangent", 9, 1, 10, 1),
    Sketcher.Constraint("Tangent", 10, 2, 11, 2),
    Sketcher.Constraint("Tangent", 11, 1, 12, 1),
    Sketcher.Constraint("Coincident", 12, 2, 13, 1),
    Sketcher.Constraint("Coincident", 13, 2, 14, 1),
    Sketcher.Constraint("Coincident", 14, 2, 15, 1),
    Sketcher.Constraint("Coincident", 15, 2, 16, 1),
    Sketcher.Constraint("Tangent", 16, 2, 17, 2),
    Sketcher.Constraint("Tangent", 17, 1, 18, 1),
    Sketcher.Constraint("Tangent", 18, 2, 19, 2),
    Sketcher.Constraint("Tangent", 19, 1, 20, 1),
    Sketcher.Constraint("Tangent", 20, 2, 21, 2),
    Sketcher.Constraint("Tangent", 21, 1, 22, 1),
    Sketcher.Constraint("Coincident", 22, 2, 23, 1),
    Sketcher.Constraint("Coincident", 23, 2, 24, 1),
    Sketcher.Constraint("Coincident", 24, 2, 25, 1),
    Sketcher.Constraint("Tangent", 25, 2, 26, 2),
    Sketcher.Constraint("Tangent", 26, 1, 27, 1),
    Sketcher.Constraint("Tangent", 27, 2, 28, 2),
    Sketcher.Constraint("Tangent", 28, 1, 29, 1),
    Sketcher.Constraint("Tangent", 29, 2, 30, 2),
    Sketcher.Constraint("Tangent", 30, 1, 31, 1),
    Sketcher.Constraint("Coincident", 31, 2, 32, 1),
    Sketcher.Constraint("Coincident", 32, 2, 33, 1),
    Sketcher.Constraint("Coincident", 33, 2, 34, 1),
    Sketcher.Constraint("Coincident", 34, 2, 35, 1),
    Sketcher.Constraint("Tangent", 35, 2, 36, 2),
    Sketcher.Constraint("Tangent", 36, 1, 37, 1),
    Sketcher.Constraint("Tangent", 37, 2, 38, 2),
    Sketcher.Constraint("Tangent", 38, 1, 39, 1),
    Sketcher.Constraint("Tangent", 39, 2, 40, 2),
    Sketcher.Constraint("Tangent", 40, 1, 41, 1),
    Sketcher.Constraint("Coincident", 41, 2, 42, 1),
    Sketcher.Constraint("Coincident", 42, 2, 43, 1),
    Sketcher.Constraint("Coincident", 43, 2, 44, 1),
    Sketcher.Constraint("Tangent", 44, 2, 45, 2),
    Sketcher.Constraint("Tangent", 45, 1, 46, 1),
    Sketcher.Constraint("Tangent", 46, 2, 47, 2),
    Sketcher.Constraint("Tangent", 47, 1, 48, 1),
    Sketcher.Constraint("Tangent", 48, 2, 49, 2),
    Sketcher.Constraint("Tangent", 49, 1, 50, 1),
    Sketcher.Constraint("Coincident", 50, 2, 51, 1),
    Sketcher.Constraint("Coincident", 51, 2, 52, 1),
    Sketcher.Constraint("Coincident", 52, 2, 53, 1),
    Sketcher.Constraint("Coincident", 53, 2, 54, 1),
    Sketcher.Constraint("Tangent", 54, 2, 55, 2),
    Sketcher.Constraint("Tangent", 55, 1, 56, 1),
    Sketcher.Constraint("Tangent", 56, 2, 57, 2),
    Sketcher.Constraint("Tangent", 57, 1, 0, 1),
    Sketcher.Constraint("Tangent", 58, 1, 59, 2),
    Sketcher.Constraint("Tangent", 59, 1, 60, 1),
    Sketcher.Constraint("Tangent", 60, 2, 61, 2),
    Sketcher.Constraint("Tangent", 61, 1, 62, 2),
    Sketcher.Constraint("Tangent", 62, 1, 63, 1),
    Sketcher.Constraint("Tangent", 63, 2, 58, 2),
    Sketcher.Constraint("Vertical", 0),
    Sketcher.Constraint("Horizontal", 2),
    Sketcher.Constraint("Vertical", 3),
    Sketcher.Constraint("Horizontal", 4),
    Sketcher.Constraint("Vertical", 5),
    Sketcher.Constraint("Horizontal", 6),
    Sketcher.Constraint("Vertical", 8),
    Sketcher.Constraint("Horizontal", 12),
    Sketcher.Constraint("Vertical", 13),
    Sketcher.Constraint("Horizontal", 14),
    Sketcher.Constraint("Vertical", 15),
    Sketcher.Constraint("Horizontal", 16),
    Sketcher.Constraint("Horizontal", 22),
    Sketcher.Constraint("Vertical", 23),
    Sketcher.Constraint("Horizontal", 24),
    Sketcher.Constraint("Vertical", 25),
    Sketcher.Constraint("Vertical", 29),
    Sketcher.Constraint("Horizontal", 31),
    Sketcher.Constraint("Vertical", 32),
    Sketcher.Constraint("Horizontal", 33),
    Sketcher.Constraint("Vertical", 34),
    Sketcher.Constraint("Horizontal", 35),
    Sketcher.Constraint("Vertical", 37),
    Sketcher.Constraint("Vertical", 41),
    Sketcher.Constraint("Horizontal", 42),
    Sketcher.Constraint("Vertical", 43),
    Sketcher.Constraint("Horizontal", 44),
    Sketcher.Constraint("Horizontal", 50),
    Sketcher.Constraint("Vertical", 51),
    Sketcher.Constraint("Horizontal", 52),
    Sketcher.Constraint("Vertical", 53),
    Sketcher.Constraint("Horizontal", 54),
    Sketcher.Constraint("Vertical", 60),
    Sketcher.Constraint("Vertical", 63),
    Sketcher.Constraint("Equal", 1, 7),
    Sketcher.Constraint("Equal", 9, 19),
    Sketcher.Constraint("Equal", 17, 21),
    Sketcher.Constraint("Equal", 19, 28),
    Sketcher.Constraint("Equal", 7, 30),
    Sketcher.Constraint("Equal", 30, 36),
    Sketcher.Constraint("Equal", 28, 38),
    Sketcher.Constraint("Equal", 26, 40),
    Sketcher.Constraint("Equal", 21, 45),
    Sketcher.Constraint("Equal", 38, 47),
    Sketcher.Constraint("Equal", 45, 49),
    Sketcher.Constraint("Equal", 11, 55),
    Sketcher.Constraint("Equal", 47, 57),
    Sketcher.Constraint("Equal", 36, 58),
    Sketcher.Constraint("Equal", 58, 59),
    Sketcher.Constraint("Equal", 59, 61),
    Sketcher.Constraint("Symmetric", 1, 3, 30, 3, -1, 1),
    Sketcher.Constraint("Symmetric", 7, 3, 36, 3, -1, 1),
    Sketcher.Constraint("Symmetric", 58, 3, 61, 3, -1, 1),
    Sketcher.Constraint("Symmetric", 3, 2, 32, 2, -1, 1),
    Sketcher.Constraint("Symmetric", 17, 1, 39, 2, -1, 1),
    Sketcher.Constraint("Symmetric", 26, 1, 48, 2, -1, 1),
    Sketcher.Constraint("Symmetric", 1, 3, 7, 3, -2),
    Sketcher.Constraint("Symmetric", 26, 3, 40, 3, -2),
    Sketcher.Constraint("Symmetric", 21, 3, 45, 3, -2),
    Sketcher.Constraint("Symmetric", 19, 3, 47, 3, -2),
    Sketcher.Constraint("Symmetric", 11, 3, 55, 3, -2),
    Sketcher.Constraint("Symmetric", 23, 2, 42, 2, -2),
    Sketcher.Constraint("Symmetric", 15, 2, 50, 2, -2),
    Sketcher.Constraint("Symmetric", 13, 2, 52, 2, -2),
    Sketcher.Constraint("PointOnObject", 58, 1, -2),
    Sketcher.Constraint("PointOnObject", 61, 1, -2),
    Sketcher.Constraint("Parallel", 10, 18),
    Sketcher.Constraint("Perpendicular", 18, 20),
    Sketcher.Constraint("Parallel", 20, 27),
    Sketcher.Constraint("Perpendicular", 27, 39),
    Sketcher.Constraint("Parallel", 48, 56),
    Sketcher.Constraint("Horizontal", 7, 3, 58, 3),
    Sketcher.Constraint("Horizontal", 7, 1, 10, 2),
    Sketcher.Constraint("Horizontal", 6, 2, 11, 1),
    Sketcher.Constraint("Horizontal", 4, 2, 13, 2),
    Sketcher.Constraint("Horizontal", 12, 2, 15, 2),
    Sketcher.Constraint("Horizontal", 10, 2, 17, 1),
    Sketcher.Constraint("Horizontal", 62, 3, 20, 2),
    Sketcher.Constraint("Horizontal", 40, 3, 21, 1),
    Sketcher.Constraint("Horizontal", 24, 2, 32, 2),
    Sketcher.Constraint("Vertical", 5, 2, 31, 2),
    Sketcher.Constraint("Vertical", 3, 2, 33, 2),
    Sketcher.Constraint("Equal", 6, 16),
    Sketcher.Constraint("Equal", 16, 22),
    Sketcher.Constraint("Radius", 1, Q("0.1 in")),
    Sketcher.Constraint("DistanceX", 4, 2, 4, 1, Q("1.5 in")),
    Sketcher.Constraint("Radius", 9, Q("0.03125 in")),
    Sketcher.Constraint("DistanceX", 2, 1, 2, 2, Q("0.05 in")),
    Sketcher.Constraint("DistanceX", 14, 2, 14, 1, Q("0.75 in")),
    Sketcher.Constraint("DistanceY", 60, 2, 60, 1, Q("3.38 in")),
    Sketcher.Constraint("DistanceY", 3, 1, 3, 2, Q("0.085 in")),
    Sketcher.Constraint("DistanceX", 26, 3, -1, 1, Q("2.19 in")),
    Sketcher.Constraint("DistanceX", 12, 1, 12, 2, Q("3.41159 mm")),
    Sketcher.Constraint("Distance", 18, Q("47.212781 mm")),
])
pad3 = doc.addObject("PartDesign::Pad", "Pad002")
body2.addObject(pad3)
pad3.Profile = sketch3
pad3.Length = Q("0.3125 in")

# Sketch on XZ plane
sketch4 = doc.addObject("Sketcher::SketchObject", "Sketch003")
body2.addObject(sketch4)
sketch4.AttachmentSupport = (doc.getObject("XZ_Plane001"), [""])
sketch4.MapMode = "FlatFace"
sketch4.AttachmentOffset = App.Placement(App.Vector(0, 0, 1.78125 * 25.4), App.Rotation())
sketch4.addGeometry([
    Part.LineSegment(App.Vector(62.393102, -47.625, 0), App.Vector(62.393102, -50.8, 0)),  # 0
    Part.LineSegment(App.Vector(62.393102, -50.8, 0), App.Vector(78.268102, -50.8, 0)),  # 1
    Part.LineSegment(App.Vector(78.268102, -50.8, 0), App.Vector(78.268102, -47.625, 0)),  # 2
    Part.LineSegment(App.Vector(78.268102, -47.625, 0), App.Vector(62.393102, -47.625, 0)),  # 3
    Part.LineSegment(App.Vector(-78.268102, -47.625, 0), App.Vector(-78.268102, -50.8, 0)),  # 4
    Part.LineSegment(App.Vector(-78.268102, -50.8, 0), App.Vector(-62.393102, -50.8, 0)),  # 5
    Part.LineSegment(App.Vector(-62.393102, -50.8, 0), App.Vector(-62.393102, -47.625, 0)),  # 6
    Part.LineSegment(App.Vector(-62.393102, -47.625, 0), App.Vector(-78.268102, -47.625, 0)),  # 7
], False)
sketch4.addConstraint([
    Sketcher.Constraint("Coincident", 0, 2, 1, 1),
    Sketcher.Constraint("Coincident", 1, 2, 2, 1),
    Sketcher.Constraint("Coincident", 2, 2, 3, 1),
    Sketcher.Constraint("Coincident", 3, 2, 0, 1),
    Sketcher.Constraint("Coincident", 4, 2, 5, 1),
    Sketcher.Constraint("Coincident", 5, 2, 6, 1),
    Sketcher.Constraint("Coincident", 6, 2, 7, 1),
    Sketcher.Constraint("Coincident", 7, 2, 4, 1),
    Sketcher.Constraint("Vertical", 0),
    Sketcher.Constraint("Horizontal", 1),
    Sketcher.Constraint("Vertical", 2),
    Sketcher.Constraint("Horizontal", 3),
    Sketcher.Constraint("Vertical", 4),
    Sketcher.Constraint("Horizontal", 5),
    Sketcher.Constraint("Vertical", 6),
    Sketcher.Constraint("Horizontal", 7),
    Sketcher.Constraint("Symmetric", 1, 2, 4, 2, -2),
    Sketcher.Constraint("Symmetric", 3, 2, 6, 2, -2),
    Sketcher.Constraint("DistanceY", 0, 2, -1, 1, Q("2 in")),
    Sketcher.Constraint("DistanceX", 1, 1, 1, 2, Q("0.625 in")),
    Sketcher.Constraint("DistanceY", 0, 2, 0, 1, Q("0.125 in")),
    Sketcher.Constraint("DistanceX", -1, 1, 0, 2, Q("62.393102 mm")),
])
pad4 = doc.addObject("PartDesign::Pad", "Pad003")
body2.addObject(pad4)
pad4.Profile = sketch4
pad4.Length = Q("0.125 in")
body3 = doc.addObject("PartDesign::Body", "Body002")

# Sketch on XZ plane
sketch5 = doc.addObject("Sketcher::SketchObject", "Sketch004")
body3.addObject(sketch5)
sketch5.AttachmentSupport = (doc.getObject("XZ_Plane002"), [""])
sketch5.MapMode = "FlatFace"
sketch5.addGeometry([
    Part.LineSegment(App.Vector(84.383747, -47.625, 0), App.Vector(-84.383747, -47.625, 0)),  # 0
    Part.ArcOfCircle(Part.Circle(App.Vector(-87.558747, -47.625, 0), App.Vector(0, 0, 1), 3.175), math.radians(-90), math.radians(0)),  # 1
    Part.LineSegment(App.Vector(-87.558747, -50.8, 0), App.Vector(-87.558747, -57.15, 0)),  # 2
    Part.LineSegment(App.Vector(-87.558747, -57.15, 0), App.Vector(87.558747, -57.15, 0)),  # 3
    Part.LineSegment(App.Vector(87.558747, -57.15, 0), App.Vector(87.558747, -50.8, 0)),  # 4
    Part.ArcOfCircle(Part.Circle(App.Vector(87.558747, -47.625, 0), App.Vector(0, 0, 1), 3.175), math.radians(180), math.radians(270)),  # 5
], False)
sketch5.addConstraint([
    Sketcher.Constraint("Coincident", 0, 2, 1, 2),
    Sketcher.Constraint("Coincident", 1, 1, 2, 1),
    Sketcher.Constraint("Coincident", 2, 2, 3, 1),
    Sketcher.Constraint("Coincident", 3, 2, 4, 1),
    Sketcher.Constraint("Coincident", 4, 2, 5, 2),
    Sketcher.Constraint("Coincident", 5, 1, 0, 1),
    Sketcher.Constraint("Horizontal", 0),
    Sketcher.Constraint("Vertical", 2),
    Sketcher.Constraint("Horizontal", 3),
    Sketcher.Constraint("Vertical", 4),
    Sketcher.Constraint("Equal", 1, 5),
    Sketcher.Constraint("Symmetric", 1, 3, 5, 3, -2),
    Sketcher.Constraint("Horizontal", 5, 3, 0, 2),
    Sketcher.Constraint("Vertical", 5, 3, 3, 2),
    Sketcher.Constraint("DistanceY", 1, 1, -1, 1, Q("2 in")),
    Sketcher.Constraint("Radius", 1, Q("0.125 in")),
    Sketcher.Constraint("DistanceY", 2, 2, 2, 1, Q("0.25 in")),
    Sketcher.Constraint("DistanceX", 1, 1, 0, 2, Q("0.125 in")),
    Sketcher.Constraint("DistanceX", 0, 2, 0, 1, Q("168.767495 mm")),
])
pad5 = doc.addObject("PartDesign::Pad", "Pad004")
body3.addObject(pad5)
pad5.Profile = sketch5
pad5.Type = "TwoLengths"
pad5.Length = Q("2.25 in")
pad5.Length2 = Q("0.25 in")

# Sketch on YZ plane
sketch6 = doc.addObject("Sketcher::SketchObject", "Sketch005")
body3.addObject(sketch6)
sketch6.AttachmentSupport = (doc.getObject("YZ_Plane002"), [""])
sketch6.MapMode = "FlatFace"
sketch6.addGeometry([
    Part.Circle(App.Vector(6.35, -47.625, 0), App.Vector(0, 0, 1), 3.175),
    Part.Circle(App.Vector(-57.15, -47.625, 0), App.Vector(0, 0, 1), 3.175),
], False)
sketch6.addConstraint([
    Sketcher.Constraint("Equal", 0, 1),
    Sketcher.Constraint("Horizontal", 0, 3, 1, 3),
    Sketcher.Constraint("Diameter", 0, Q("0.25 in")),
    Sketcher.Constraint("DistanceX", 1, 3, 0, 3, Q("2.5 in")),
    Sketcher.Constraint("DistanceX", -1, 1, 0, 3, Q("0.25 in")),
    Sketcher.Constraint("DistanceY", 0, 3, -1, 1, Q("1.875 in")),
])
pocket1 = doc.addObject("PartDesign::Pocket", "Pocket")
body3.addObject(pocket1)
pocket1.Profile = sketch6
pocket1.Type = "ThroughAll"
pocket1.Midplane = True

doc.recompute()
